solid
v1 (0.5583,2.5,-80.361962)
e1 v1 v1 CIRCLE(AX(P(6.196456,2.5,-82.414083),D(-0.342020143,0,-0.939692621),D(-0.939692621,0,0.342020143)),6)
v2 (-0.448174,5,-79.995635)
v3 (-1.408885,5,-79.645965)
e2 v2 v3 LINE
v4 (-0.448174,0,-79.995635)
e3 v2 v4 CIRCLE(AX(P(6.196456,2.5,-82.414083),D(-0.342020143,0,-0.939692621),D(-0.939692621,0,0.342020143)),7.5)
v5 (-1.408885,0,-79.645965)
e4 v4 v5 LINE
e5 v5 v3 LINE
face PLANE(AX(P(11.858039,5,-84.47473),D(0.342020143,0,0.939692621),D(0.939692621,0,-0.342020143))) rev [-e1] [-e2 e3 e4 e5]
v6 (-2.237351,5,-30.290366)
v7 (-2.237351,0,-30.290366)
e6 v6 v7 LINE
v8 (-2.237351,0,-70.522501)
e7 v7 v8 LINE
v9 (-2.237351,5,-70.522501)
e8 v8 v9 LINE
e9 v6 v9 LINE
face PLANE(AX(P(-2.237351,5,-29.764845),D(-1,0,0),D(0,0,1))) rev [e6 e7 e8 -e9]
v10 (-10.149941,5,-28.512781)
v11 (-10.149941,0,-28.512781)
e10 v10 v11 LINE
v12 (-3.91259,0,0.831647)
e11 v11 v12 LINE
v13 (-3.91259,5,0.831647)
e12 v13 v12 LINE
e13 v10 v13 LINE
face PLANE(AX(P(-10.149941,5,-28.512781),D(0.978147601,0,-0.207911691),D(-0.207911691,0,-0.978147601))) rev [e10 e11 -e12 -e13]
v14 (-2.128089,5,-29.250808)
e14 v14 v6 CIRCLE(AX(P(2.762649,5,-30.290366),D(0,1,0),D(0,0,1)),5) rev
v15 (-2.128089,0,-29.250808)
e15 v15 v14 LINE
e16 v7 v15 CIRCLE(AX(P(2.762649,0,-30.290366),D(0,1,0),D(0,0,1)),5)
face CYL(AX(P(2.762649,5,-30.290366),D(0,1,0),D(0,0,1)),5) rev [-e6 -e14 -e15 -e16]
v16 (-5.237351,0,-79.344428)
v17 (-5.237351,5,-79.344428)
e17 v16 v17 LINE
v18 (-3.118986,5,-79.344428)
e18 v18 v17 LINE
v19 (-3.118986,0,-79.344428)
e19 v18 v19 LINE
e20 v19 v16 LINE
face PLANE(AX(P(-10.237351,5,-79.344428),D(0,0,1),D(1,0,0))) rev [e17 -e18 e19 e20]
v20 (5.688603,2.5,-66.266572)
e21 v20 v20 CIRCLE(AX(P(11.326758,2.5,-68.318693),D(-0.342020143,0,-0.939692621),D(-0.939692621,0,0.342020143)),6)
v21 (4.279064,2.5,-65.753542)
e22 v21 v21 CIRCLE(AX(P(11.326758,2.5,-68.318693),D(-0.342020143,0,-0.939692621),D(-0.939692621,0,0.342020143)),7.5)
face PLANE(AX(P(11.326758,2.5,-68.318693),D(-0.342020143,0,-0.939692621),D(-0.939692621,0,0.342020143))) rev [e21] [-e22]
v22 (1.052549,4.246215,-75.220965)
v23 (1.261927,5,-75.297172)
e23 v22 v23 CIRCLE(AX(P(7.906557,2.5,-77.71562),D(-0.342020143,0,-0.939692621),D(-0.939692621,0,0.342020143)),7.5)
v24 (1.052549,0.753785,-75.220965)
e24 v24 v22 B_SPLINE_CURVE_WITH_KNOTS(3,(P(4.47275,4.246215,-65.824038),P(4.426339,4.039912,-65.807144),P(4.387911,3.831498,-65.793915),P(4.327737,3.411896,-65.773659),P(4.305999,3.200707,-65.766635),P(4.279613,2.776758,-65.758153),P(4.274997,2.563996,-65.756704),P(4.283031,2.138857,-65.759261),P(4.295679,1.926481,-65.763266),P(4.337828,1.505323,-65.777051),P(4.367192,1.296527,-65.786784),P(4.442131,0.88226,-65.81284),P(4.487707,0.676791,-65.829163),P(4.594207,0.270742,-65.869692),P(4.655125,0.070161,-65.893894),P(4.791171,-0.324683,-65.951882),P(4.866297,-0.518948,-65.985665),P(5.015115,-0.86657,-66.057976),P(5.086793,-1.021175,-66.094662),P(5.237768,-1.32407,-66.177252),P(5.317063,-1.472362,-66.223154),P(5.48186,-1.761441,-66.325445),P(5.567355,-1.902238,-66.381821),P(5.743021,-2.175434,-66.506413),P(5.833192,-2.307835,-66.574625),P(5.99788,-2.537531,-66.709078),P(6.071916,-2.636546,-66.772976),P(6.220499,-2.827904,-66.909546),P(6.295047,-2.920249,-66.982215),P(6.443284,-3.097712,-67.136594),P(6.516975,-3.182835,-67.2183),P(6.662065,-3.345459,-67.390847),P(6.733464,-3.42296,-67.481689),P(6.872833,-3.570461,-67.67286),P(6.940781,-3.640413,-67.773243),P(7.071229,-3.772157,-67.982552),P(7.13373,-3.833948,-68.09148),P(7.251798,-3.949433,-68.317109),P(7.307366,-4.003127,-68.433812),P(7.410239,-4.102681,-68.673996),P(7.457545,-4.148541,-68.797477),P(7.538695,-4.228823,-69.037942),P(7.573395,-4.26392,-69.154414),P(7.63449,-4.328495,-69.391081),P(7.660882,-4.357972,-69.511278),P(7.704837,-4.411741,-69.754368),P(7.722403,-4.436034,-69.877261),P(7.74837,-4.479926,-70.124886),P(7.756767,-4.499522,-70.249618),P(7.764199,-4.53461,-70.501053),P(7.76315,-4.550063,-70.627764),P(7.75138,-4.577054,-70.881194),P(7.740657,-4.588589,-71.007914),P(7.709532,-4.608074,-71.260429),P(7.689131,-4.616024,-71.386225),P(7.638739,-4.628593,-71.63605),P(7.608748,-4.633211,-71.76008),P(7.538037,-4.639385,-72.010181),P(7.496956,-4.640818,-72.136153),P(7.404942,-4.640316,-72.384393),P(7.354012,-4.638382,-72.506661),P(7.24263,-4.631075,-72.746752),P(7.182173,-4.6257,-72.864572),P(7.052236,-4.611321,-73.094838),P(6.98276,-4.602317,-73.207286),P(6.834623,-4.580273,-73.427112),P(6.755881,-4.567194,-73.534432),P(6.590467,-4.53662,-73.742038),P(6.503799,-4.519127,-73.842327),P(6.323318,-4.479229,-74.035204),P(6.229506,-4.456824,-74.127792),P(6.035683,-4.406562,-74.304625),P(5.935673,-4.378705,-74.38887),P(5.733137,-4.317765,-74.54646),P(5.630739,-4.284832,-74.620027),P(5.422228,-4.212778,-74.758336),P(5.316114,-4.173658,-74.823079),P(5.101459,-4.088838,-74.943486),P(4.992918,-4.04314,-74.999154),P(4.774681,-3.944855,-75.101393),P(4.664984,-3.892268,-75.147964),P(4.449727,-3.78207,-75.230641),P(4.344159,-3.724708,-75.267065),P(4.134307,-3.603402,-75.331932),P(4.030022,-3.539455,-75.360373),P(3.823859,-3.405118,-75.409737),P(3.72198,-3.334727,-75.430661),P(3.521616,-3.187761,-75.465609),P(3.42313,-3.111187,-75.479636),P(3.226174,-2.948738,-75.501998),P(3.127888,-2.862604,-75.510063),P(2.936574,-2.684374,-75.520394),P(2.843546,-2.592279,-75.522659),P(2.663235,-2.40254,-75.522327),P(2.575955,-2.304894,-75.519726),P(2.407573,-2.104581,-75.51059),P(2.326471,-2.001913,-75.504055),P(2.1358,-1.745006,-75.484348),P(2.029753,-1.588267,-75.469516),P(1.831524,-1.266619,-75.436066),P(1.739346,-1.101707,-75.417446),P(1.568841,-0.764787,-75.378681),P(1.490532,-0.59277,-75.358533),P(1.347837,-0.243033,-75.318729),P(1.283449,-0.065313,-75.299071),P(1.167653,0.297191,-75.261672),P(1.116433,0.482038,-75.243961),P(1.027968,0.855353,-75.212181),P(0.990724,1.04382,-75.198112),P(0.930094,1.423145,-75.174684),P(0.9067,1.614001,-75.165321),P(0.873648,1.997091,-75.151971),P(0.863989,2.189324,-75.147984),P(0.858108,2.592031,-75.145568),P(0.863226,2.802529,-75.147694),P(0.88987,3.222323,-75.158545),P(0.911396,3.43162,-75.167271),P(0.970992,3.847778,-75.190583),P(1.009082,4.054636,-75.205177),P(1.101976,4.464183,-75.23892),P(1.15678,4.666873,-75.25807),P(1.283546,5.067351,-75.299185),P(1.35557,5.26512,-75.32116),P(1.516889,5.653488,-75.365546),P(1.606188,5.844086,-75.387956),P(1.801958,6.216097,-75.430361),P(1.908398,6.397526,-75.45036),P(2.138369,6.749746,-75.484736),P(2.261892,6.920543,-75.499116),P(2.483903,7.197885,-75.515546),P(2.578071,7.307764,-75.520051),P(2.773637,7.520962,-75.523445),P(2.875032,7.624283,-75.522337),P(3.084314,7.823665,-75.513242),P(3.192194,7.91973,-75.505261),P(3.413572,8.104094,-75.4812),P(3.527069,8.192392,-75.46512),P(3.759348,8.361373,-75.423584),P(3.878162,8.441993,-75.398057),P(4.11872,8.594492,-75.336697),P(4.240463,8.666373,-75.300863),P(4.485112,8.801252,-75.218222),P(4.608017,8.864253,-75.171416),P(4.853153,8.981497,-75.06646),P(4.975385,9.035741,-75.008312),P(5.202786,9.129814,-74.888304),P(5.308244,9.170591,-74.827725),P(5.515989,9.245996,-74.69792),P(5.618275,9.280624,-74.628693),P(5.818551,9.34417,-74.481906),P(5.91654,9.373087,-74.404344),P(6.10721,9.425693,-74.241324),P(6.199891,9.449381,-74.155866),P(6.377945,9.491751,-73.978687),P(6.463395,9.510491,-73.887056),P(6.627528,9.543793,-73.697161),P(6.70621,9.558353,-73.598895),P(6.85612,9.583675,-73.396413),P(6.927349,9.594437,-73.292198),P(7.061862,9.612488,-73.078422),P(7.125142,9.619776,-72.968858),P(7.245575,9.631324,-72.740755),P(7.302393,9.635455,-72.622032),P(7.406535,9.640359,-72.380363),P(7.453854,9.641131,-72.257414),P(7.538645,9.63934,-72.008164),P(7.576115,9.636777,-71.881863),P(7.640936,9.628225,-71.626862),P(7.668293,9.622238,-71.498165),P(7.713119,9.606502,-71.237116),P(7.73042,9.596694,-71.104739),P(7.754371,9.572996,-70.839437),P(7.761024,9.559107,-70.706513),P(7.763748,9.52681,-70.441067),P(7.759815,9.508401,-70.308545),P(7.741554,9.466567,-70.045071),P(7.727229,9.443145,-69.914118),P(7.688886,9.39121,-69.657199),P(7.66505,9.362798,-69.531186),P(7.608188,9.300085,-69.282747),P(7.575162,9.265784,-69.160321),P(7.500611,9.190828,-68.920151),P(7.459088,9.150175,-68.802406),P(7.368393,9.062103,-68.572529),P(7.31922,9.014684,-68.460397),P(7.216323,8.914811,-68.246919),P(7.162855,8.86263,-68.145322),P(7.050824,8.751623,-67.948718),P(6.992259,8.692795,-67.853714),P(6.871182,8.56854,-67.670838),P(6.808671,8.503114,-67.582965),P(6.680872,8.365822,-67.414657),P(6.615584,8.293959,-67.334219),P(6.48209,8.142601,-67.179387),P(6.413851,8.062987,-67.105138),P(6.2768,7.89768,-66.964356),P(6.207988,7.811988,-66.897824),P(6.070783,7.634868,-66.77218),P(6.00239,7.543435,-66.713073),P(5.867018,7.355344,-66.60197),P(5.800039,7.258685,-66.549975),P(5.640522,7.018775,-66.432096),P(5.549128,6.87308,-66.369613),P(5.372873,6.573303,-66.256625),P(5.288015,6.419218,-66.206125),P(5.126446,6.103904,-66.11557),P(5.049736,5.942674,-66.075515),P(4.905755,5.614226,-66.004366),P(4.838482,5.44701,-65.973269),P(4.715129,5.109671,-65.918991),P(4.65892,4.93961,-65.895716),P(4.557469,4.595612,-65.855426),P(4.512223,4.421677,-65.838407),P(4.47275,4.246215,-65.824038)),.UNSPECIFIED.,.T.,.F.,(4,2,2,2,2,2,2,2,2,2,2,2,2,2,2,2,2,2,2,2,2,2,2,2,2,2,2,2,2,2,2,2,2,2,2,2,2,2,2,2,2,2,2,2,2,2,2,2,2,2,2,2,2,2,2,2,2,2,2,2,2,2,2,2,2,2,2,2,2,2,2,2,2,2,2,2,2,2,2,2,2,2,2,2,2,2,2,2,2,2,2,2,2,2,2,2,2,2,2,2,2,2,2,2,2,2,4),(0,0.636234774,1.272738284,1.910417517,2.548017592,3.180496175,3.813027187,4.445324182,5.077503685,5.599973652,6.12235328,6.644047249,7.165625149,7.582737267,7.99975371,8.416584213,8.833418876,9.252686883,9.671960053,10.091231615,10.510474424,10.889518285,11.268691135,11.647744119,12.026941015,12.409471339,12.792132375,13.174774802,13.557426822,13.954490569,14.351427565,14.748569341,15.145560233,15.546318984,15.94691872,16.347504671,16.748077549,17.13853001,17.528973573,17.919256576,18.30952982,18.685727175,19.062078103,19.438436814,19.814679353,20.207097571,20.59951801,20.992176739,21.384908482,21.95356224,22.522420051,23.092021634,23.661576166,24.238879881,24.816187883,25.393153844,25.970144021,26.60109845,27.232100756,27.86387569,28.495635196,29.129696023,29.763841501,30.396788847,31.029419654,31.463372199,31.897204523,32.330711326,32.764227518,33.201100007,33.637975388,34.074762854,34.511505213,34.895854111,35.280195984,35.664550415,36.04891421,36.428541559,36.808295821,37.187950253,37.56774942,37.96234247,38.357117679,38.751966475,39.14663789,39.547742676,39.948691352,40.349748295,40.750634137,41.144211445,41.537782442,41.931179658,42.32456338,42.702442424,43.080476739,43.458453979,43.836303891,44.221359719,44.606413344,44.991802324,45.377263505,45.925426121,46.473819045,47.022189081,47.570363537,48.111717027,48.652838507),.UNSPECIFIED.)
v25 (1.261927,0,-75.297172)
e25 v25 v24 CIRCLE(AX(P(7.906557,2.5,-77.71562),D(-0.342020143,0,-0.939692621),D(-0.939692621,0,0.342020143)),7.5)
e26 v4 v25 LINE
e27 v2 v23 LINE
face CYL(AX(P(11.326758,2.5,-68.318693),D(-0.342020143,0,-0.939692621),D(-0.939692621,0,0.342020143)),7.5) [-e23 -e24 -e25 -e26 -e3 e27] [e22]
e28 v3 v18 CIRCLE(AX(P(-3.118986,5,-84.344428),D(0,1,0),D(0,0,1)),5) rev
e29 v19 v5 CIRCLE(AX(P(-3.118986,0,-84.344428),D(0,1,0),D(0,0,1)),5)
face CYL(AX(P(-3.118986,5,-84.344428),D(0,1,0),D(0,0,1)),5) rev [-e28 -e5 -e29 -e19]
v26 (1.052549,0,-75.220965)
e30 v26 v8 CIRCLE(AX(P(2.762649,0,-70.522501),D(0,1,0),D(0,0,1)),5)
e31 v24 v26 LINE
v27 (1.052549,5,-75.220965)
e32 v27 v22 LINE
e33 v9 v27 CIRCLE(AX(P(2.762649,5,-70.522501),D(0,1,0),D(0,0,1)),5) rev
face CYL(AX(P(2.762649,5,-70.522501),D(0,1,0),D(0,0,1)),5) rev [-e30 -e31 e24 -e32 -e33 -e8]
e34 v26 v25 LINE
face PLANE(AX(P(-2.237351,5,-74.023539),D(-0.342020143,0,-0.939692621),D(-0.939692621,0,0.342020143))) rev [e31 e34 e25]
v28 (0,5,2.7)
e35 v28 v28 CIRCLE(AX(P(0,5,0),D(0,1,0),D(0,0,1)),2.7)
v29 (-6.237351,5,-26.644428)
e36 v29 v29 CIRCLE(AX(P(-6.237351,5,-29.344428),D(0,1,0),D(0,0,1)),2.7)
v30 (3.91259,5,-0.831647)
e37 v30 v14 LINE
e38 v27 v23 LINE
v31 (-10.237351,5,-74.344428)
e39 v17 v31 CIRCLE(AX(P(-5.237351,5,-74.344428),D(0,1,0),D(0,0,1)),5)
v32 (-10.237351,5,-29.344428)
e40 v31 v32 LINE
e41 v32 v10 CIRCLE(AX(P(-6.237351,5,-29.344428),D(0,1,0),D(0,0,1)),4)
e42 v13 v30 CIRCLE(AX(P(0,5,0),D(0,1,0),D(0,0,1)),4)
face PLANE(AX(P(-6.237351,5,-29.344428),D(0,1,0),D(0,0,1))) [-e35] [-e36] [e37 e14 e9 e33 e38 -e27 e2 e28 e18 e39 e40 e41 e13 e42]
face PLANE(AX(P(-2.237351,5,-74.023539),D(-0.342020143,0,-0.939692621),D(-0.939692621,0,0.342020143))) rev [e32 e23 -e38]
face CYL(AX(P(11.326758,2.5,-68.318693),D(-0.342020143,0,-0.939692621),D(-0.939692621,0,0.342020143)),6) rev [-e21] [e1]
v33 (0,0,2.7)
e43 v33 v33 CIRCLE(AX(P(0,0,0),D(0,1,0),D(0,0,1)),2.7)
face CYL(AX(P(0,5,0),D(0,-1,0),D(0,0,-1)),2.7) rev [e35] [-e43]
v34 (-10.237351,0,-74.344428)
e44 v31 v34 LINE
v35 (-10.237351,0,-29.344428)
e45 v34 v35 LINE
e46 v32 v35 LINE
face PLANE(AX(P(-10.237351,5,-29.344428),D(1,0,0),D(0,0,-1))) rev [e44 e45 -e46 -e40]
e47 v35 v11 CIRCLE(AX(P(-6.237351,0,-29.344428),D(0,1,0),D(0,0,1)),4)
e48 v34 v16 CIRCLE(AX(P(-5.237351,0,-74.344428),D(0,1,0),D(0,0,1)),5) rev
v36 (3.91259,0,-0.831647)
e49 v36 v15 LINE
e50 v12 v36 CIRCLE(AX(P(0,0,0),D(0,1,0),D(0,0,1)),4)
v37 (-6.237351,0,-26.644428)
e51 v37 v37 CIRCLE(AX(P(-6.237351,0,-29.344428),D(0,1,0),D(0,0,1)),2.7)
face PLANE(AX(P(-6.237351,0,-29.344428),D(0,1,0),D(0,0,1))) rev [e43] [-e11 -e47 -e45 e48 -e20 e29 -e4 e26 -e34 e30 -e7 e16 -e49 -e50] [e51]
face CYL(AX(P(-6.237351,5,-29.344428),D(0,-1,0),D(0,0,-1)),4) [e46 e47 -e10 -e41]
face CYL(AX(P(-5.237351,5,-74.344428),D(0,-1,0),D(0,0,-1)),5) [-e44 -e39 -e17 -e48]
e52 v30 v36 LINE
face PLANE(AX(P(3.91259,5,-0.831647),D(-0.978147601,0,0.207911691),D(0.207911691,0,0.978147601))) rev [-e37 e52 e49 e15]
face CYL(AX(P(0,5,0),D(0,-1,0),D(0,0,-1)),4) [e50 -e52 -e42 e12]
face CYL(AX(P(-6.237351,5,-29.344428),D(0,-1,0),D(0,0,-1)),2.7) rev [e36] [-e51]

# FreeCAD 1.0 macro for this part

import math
import FreeCAD as App
import Part
import Sketcher
Q = App.Units.Quantity


def edges_at(feature, points):
    """Names of the edges that pass closest to the given points."""
    edges = feature.Shape.Edges
    near = lambda p: min(range(len(edges)), key=lambda i: edges[i].distToShape(Part.Vertex(*p))[0])
    return sorted({f"Edge{near(p) + 1}" for p in points})

doc = App.newDocument("Part")
body = doc.addObject("PartDesign::Body", "Body")

sketch1 = body.newObject("Sketcher::SketchObject", "Sketch")
sketch1.AttachmentSupport = (doc.getObject("XZ_Plane"), [""])
sketch1.MapMode = "FlatFace"
sketch1.addGeometry([
    Part.LineSegment(App.Vector(-10.149941, -28.512781, 0), App.Vector(-3.91259, 0.831647, 0)),
    Part.ArcOfCircle(Part.Circle(App.Vector(0, 0, 0), App.Vector(0, 0, 1), 4), math.radians(-12), math.radians(168)),
    Part.LineSegment(App.Vector(3.91259, -0.831647, 0), App.Vector(-2.237351, -29.764845, 0)),
    Part.LineSegment(App.Vector(-2.237351, -29.764845, 0), App.Vector(-2.237351, -74.023539, 0)),
    Part.LineSegment(App.Vector(-2.237351, -74.023539, 0), App.Vector(13.568139, -79.776267, 0)),
    Part.LineSegment(App.Vector(13.568139, -79.776267, 0), App.Vector(11.858039, -84.47473, 0)),
    Part.LineSegment(App.Vector(11.858039, -84.47473, 0), App.Vector(-2.237351, -79.344428, 0)),
    Part.LineSegment(App.Vector(-2.237351, -79.344428, 0), App.Vector(-10.237351, -79.344428, 0)),
    Part.LineSegment(App.Vector(-10.237351, -79.344428, 0), App.Vector(-10.237351, -29.344428, 0)),
    Part.ArcOfCircle(Part.Circle(App.Vector(-6.237351, -29.344428, 0), App.Vector(0, 0, 1), 4), math.radians(168), math.radians(180)),
    Part.Circle(App.Vector(0, 0, 0), App.Vector(0, 0, 1), 2.7),
    Part.Circle(App.Vector(-6.237351, -29.344428, 0), App.Vector(0, 0, 1), 2.7),
], False)
sketch1.addConstraint([
    Sketcher.Constraint("Tangent", 0, 2, 1, 2),
    Sketcher.Constraint("Tangent", 1, 1, 2, 1),
    Sketcher.Constraint("Coincident", 2, 2, 3, 1),
    Sketcher.Constraint("Coincident", 3, 2, 4, 1),
    Sketcher.Constraint("Coincident", 4, 2, 5, 1),
    Sketcher.Constraint("Coincident", 5, 2, 6, 1),
    Sketcher.Constraint("Coincident", 6, 2, 7, 1),
    Sketcher.Constraint("Coincident", 7, 2, 8, 1),
    Sketcher.Constraint("Tangent", 8, 2, 9, 2),
    Sketcher.Constraint("Tangent", 9, 1, 0, 1),
    Sketcher.Constraint("Vertical", 3),
    Sketcher.Constraint("Horizontal", 7),
    Sketcher.Constraint("Vertical", 8),
    Sketcher.Constraint("Coincident", 1, 3, -1, 1),
    Sketcher.Constraint("Coincident", 10, 3, -1, 1),
    Sketcher.Constraint("Coincident", 11, 3, 9, 3),
    Sketcher.Constraint("Equal", 1, 9),
    Sketcher.Constraint("Equal", 10, 11),
    Sketcher.Constraint("Parallel", 0, 2),
    Sketcher.Constraint("Perpendicular", 4, 5),
    Sketcher.Constraint("Perpendicular", 5, 6),
    Sketcher.Constraint("Vertical", 3, 2, 6, 2),
    Sketcher.Constraint("Radius", 1, 4.0),
    Sketcher.Constraint("Diameter", 10, 5.4),
    Sketcher.Constraint("DistanceX", 7, 2, 7, 1, 8.0),
    Sketcher.Constraint("DistanceY", 8, 1, 8, 2, 50.0),
    Sketcher.Constraint("Angle", 0, Q("78 deg")),
    Sketcher.Constraint("Angle", 4, Q("-20 deg")),
    Sketcher.Constraint("Distance", 0, 30.0),
    Sketcher.Constraint("Distance", 5, 5.0),
    Sketcher.Constraint("Distance", 6, 15.0),
])
pad1 = body.newObject("PartDesign::Pad", "Pad")
pad1.Profile = sketch1
pad1.Length = 5
pad1.Reversed = True
doc.recompute()

fillet = body.newObject("PartDesign::Fillet", "Fillet")
fillet.Base = (pad1, edges_at(pad1, [
    (-2.237, 2.5, -29.765),
    (-10.237, 2.5, -79.344),
    (-2.237, 2.5, -79.344),
    (-2.237, 2.5, -74.024),
]))
fillet.Radius = 5

sketch2 = body.newObject("Sketcher::SketchObject", "Sketch001")
sketch2.Placement = App.Placement(App.Vector(-25.762528, 0, -70.781964), App.Rotation(App.Vector(-0.939692621, 0, 0.342020143), App.Vector(0, 1, 0), App.Vector(-0.342020143, 0, -0.939692621), "ZXY"))
sketch2.addGeometry([
    Part.Circle(App.Vector(-34.01004, 2.5, 0), App.Vector(0, 0, 1), 7.5),
    Part.Circle(App.Vector(-34.01004, 2.5, 0), App.Vector(0, 0, 1), 6),
], False)
sketch2.addConstraint([
    Sketcher.Constraint("Coincident", 1, 3, 0, 3),
    Sketcher.Constraint("Diameter", 0, 15.0),
    Sketcher.Constraint("Diameter", 1, 12.0),
    Sketcher.Constraint("DistanceY", -1, 1, 0, 3, 2.5),
    Sketcher.Constraint("DistanceX", 0, 3, -1, 1, 34.01004),
])
pad2 = body.newObject("PartDesign::Pad", "Pad001")
pad2.Profile = sketch2
pad2.Length = 15
pad2.Reversed = True

sketch3 = body.newObject("Sketcher::SketchObject", "Sketch002")
sketch3.Placement = App.Placement(App.Vector(-25.762528, 0, -70.781964), App.Rotation(App.Vector(-0.939692621, 0, 0.342020143), App.Vector(0, 1, 0), App.Vector(-0.342020143, 0, -0.939692621), "ZXY"))
sketch3.addGeometry([
    Part.ArcOfCircle(Part.Circle(App.Vector(-34.01004, 2.5, 0), App.Vector(0, 0, 1), 6), math.radians(0), math.radians(24.624318)),
    Part.LineSegment(App.Vector(-28.555684, 5, 0), App.Vector(-39.464396, 5, 0)),
    Part.ArcOfCircle(Part.Circle(App.Vector(-34.01004, 2.5, 0), App.Vector(0, 0, 1), 6), math.radians(155.375682), math.radians(204.624318)),
    Part.LineSegment(App.Vector(-39.464396, 0, 0), App.Vector(-28.555684, 0, 0)),
    Part.ArcOfCircle(Part.Circle(App.Vector(-34.01004, 2.5, 0), App.Vector(0, 0, 1), 6), math.radians(-24.624318), math.radians(0)),
], False)
sketch3.addConstraint([
    Sketcher.Constraint("Coincident", 0, 2, 1, 1),
    Sketcher.Constraint("Coincident", 1, 2, 2, 1),
    Sketcher.Constraint("Coincident", 2, 2, 3, 1),
    Sketcher.Constraint("Coincident", 3, 2, 4, 1),
    Sketcher.Constraint("Tangent", 4, 2, 0, 1),
    Sketcher.Constraint("Horizontal", 1),
    Sketcher.Constraint("Horizontal", 3),
    Sketcher.Constraint("Coincident", 2, 3, 0, 3),
    Sketcher.Constraint("Equal", 0, 2),
    Sketcher.Constraint("Equal", 2, 4),
    Sketcher.Constraint("PointOnObject", 2, 2, -1),
    Sketcher.Constraint("Horizontal", 2, 3, 4, 2),
    Sketcher.Constraint("Vertical", 1, 2, 2, 2),
    Sketcher.Constraint("Radius", 0, 6.0),
    Sketcher.Constraint("DistanceY", -1, 1, 0, 2, 5.0),
    Sketcher.Constraint("DistanceX", 0, 3, -1, 1, 34.01004),
])
pocket1 = body.newObject("PartDesign::Pocket", "Pocket")
pocket1.Profile = sketch3
pocket1.Length = 15

doc.recompute()
